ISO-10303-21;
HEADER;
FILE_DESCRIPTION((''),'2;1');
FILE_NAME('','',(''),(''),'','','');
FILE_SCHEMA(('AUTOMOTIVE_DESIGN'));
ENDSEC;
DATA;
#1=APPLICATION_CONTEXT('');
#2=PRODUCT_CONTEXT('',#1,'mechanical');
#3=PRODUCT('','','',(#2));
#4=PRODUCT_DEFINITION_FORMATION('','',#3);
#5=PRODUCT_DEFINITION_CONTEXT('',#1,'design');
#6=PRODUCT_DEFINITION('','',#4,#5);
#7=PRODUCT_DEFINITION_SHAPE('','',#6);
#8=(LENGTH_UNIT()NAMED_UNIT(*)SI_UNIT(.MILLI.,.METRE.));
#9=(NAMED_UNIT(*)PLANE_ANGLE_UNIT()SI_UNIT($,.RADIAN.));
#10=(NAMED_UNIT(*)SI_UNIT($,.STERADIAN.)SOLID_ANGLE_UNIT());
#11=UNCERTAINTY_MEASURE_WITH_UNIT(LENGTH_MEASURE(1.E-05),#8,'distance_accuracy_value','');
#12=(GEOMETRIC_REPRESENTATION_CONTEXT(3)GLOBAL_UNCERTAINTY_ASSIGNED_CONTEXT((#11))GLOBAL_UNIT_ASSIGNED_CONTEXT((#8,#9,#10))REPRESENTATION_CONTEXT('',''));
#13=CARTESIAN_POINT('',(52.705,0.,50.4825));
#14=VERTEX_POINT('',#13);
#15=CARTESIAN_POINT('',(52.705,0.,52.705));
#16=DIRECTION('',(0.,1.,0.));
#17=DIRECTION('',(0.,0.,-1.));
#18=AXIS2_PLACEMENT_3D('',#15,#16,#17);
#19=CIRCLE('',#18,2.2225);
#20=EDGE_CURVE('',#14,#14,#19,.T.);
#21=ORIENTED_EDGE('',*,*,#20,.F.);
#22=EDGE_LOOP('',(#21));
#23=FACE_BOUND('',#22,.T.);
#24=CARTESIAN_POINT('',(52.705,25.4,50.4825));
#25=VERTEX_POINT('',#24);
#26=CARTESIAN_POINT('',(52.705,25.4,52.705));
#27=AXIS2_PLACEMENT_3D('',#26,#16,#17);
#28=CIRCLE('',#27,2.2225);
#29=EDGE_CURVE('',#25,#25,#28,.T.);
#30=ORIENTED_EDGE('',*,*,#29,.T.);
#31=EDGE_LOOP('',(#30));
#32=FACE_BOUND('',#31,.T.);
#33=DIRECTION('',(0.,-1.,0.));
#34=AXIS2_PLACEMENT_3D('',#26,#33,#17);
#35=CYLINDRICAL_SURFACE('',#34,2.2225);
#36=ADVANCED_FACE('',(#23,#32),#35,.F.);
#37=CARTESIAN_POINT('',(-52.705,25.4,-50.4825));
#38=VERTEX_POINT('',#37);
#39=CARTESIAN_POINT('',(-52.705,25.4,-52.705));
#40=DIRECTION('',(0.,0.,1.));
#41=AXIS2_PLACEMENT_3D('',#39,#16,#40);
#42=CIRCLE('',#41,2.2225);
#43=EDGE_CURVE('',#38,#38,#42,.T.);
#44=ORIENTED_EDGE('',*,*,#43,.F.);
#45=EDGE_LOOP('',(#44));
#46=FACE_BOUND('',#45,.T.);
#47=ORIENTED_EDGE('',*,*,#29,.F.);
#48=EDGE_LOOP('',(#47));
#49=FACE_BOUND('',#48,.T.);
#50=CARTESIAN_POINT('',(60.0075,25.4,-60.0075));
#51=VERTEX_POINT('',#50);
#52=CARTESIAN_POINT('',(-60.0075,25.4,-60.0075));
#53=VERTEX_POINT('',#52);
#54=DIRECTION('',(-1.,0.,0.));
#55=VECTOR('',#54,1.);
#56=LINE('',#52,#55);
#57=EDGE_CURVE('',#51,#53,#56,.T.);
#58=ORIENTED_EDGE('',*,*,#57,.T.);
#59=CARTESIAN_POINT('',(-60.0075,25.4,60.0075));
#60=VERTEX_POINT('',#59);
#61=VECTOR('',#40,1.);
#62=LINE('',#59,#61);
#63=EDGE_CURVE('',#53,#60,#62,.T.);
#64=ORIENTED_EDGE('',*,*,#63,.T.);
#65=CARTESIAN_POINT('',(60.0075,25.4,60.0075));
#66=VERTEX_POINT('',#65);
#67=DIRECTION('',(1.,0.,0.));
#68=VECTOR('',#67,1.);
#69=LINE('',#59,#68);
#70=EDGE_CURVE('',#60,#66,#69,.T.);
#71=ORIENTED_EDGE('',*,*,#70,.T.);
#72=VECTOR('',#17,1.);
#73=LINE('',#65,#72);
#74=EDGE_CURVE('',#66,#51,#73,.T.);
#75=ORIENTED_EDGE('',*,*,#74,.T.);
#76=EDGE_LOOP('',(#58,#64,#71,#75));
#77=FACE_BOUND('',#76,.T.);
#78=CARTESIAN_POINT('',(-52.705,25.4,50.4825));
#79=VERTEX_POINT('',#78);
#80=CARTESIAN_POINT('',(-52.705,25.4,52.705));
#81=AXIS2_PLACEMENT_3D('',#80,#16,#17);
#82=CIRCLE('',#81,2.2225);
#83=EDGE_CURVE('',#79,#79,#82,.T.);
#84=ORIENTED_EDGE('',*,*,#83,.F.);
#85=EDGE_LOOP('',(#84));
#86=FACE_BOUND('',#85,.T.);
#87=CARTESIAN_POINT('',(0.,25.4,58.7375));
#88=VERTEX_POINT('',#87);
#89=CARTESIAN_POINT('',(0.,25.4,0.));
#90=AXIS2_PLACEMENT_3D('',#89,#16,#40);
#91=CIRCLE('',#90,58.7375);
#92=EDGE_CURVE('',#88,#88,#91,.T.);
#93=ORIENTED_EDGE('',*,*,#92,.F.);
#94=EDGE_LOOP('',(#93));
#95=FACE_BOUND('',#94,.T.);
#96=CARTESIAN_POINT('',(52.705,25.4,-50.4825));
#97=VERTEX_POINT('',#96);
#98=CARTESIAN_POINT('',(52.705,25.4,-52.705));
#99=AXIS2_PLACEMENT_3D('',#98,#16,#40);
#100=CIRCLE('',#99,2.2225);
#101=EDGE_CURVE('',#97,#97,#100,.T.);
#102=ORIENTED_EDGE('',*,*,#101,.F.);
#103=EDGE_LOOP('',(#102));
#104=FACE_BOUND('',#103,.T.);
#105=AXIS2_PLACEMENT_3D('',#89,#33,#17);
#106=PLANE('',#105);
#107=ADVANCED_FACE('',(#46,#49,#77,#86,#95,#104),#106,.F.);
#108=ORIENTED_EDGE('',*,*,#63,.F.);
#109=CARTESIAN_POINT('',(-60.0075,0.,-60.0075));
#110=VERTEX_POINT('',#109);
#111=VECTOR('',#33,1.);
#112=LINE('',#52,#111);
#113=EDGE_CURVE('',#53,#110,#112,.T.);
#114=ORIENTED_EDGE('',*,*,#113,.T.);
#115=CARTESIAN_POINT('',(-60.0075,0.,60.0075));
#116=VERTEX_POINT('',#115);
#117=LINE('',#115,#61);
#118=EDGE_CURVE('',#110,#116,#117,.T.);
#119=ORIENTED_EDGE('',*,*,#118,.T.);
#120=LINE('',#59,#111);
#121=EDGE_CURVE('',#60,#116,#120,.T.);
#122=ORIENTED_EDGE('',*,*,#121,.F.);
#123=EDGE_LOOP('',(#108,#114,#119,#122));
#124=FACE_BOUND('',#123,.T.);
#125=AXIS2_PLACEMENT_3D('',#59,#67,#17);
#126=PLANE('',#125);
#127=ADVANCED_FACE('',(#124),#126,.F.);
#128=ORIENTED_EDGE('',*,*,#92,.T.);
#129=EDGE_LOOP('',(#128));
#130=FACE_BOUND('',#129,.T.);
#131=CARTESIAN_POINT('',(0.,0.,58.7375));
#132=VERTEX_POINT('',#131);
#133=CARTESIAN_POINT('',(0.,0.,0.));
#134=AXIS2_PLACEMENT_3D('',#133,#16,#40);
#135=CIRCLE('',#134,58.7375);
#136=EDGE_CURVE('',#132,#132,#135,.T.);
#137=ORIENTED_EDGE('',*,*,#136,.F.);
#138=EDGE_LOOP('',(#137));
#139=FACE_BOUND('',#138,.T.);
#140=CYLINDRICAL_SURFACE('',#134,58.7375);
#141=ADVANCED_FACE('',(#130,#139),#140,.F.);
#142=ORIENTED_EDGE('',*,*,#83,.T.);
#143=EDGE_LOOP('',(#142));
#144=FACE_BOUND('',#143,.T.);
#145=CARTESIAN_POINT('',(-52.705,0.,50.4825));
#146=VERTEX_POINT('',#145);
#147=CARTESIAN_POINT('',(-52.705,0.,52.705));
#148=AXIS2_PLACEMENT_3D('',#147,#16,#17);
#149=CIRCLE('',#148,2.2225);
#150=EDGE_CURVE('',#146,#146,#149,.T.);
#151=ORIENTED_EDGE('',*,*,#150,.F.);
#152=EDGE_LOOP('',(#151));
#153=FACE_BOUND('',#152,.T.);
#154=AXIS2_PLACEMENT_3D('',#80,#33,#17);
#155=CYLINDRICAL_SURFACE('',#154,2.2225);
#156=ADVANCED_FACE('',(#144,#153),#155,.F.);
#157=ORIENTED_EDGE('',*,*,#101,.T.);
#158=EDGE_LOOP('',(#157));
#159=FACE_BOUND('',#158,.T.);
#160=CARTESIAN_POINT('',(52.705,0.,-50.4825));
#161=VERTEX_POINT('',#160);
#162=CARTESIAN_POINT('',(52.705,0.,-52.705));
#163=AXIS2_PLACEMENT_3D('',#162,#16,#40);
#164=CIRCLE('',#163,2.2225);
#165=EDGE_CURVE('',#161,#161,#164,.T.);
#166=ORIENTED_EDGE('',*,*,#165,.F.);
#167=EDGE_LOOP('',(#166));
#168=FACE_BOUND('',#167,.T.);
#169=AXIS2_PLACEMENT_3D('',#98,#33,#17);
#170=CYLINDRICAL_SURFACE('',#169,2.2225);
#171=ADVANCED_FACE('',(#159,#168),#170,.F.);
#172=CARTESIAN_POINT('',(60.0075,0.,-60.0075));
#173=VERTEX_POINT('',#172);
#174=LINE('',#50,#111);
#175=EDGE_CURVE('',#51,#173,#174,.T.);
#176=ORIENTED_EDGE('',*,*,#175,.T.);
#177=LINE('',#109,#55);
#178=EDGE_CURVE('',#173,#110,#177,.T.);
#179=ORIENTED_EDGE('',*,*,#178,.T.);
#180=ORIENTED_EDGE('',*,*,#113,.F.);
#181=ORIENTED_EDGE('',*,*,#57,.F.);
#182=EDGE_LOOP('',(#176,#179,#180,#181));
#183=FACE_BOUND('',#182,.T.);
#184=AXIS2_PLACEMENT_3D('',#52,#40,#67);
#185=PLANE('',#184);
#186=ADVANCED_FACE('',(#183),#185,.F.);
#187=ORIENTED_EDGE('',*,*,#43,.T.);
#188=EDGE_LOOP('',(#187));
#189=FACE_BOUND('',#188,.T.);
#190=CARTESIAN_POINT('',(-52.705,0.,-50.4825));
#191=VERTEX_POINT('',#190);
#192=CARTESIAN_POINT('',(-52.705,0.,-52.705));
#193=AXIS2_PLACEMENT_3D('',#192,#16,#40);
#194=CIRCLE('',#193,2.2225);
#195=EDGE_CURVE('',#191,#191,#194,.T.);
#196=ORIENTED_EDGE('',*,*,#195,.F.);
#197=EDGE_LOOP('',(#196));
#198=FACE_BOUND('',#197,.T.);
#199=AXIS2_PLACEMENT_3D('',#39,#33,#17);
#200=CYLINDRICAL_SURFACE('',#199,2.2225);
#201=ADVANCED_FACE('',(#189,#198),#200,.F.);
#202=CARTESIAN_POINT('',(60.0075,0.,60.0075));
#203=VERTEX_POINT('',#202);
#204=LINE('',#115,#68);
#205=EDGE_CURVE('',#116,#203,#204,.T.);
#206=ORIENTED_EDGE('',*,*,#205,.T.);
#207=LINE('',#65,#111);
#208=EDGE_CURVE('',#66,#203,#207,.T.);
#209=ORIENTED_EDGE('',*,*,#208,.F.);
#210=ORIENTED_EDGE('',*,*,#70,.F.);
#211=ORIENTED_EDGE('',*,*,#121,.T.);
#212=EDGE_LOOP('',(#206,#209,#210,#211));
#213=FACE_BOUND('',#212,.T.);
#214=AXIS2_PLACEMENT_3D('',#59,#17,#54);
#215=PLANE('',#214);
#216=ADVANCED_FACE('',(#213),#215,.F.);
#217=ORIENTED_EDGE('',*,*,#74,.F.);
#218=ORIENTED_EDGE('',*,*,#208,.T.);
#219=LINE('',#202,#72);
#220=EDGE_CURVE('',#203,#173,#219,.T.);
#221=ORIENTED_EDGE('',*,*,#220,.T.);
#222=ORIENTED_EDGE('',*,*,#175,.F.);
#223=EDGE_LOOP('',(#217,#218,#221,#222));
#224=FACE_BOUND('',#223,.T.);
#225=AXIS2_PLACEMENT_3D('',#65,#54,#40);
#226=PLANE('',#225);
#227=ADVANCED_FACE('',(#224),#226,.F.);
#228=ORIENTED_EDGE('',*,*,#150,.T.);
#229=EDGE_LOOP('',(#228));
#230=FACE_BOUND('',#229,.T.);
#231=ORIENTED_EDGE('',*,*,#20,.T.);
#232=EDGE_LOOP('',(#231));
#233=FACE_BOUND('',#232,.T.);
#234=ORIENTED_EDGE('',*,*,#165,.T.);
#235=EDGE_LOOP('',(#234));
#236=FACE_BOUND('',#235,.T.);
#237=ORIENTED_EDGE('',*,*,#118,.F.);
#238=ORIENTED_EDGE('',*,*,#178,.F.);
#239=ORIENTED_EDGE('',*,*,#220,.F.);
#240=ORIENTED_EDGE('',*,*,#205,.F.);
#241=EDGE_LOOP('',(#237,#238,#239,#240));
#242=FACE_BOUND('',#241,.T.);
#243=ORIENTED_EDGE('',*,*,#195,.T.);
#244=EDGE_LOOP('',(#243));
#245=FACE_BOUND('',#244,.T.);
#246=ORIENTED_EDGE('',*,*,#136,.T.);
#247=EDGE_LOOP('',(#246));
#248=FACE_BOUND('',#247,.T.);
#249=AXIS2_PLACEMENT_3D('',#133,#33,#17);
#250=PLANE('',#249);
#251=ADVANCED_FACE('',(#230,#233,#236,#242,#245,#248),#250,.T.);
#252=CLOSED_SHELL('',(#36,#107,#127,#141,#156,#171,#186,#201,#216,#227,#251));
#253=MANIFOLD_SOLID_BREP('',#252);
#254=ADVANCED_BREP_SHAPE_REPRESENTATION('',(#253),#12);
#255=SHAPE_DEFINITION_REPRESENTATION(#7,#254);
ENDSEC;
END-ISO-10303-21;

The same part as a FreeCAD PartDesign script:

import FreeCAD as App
import Part
import Sketcher
from FreeCAD import Vector
Q = App.Units.Quantity


def add_polygon(sketch, points):
    """Adds a closed chain of lines whose ends are joined by coincident constraints."""
    first, n = sketch.GeometryCount, len(points)
    for a, b in zip(points, points[1:] + points[:1]):
        sketch.addGeometry(Part.LineSegment(App.Vector(*a, 0), App.Vector(*b, 0)), False)
    for i in range(n):
        sketch.addConstraint(Sketcher.Constraint("Coincident", first + i, 2, first + (i + 1) % n, 1))

doc = App.newDocument("Part")
body = doc.addObject("PartDesign::Body", "Body")

sketch1 = body.newObject("Sketcher::SketchObject", "Sketch")
sketch1.AttachmentSupport = (doc.getObject("XZ_Plane"), [""])
sketch1.MapMode = "FlatFace"
add_polygon(sketch1, [(-60, -60), (-60, 60), (60, 60), (60, -60)])
sketch1.addGeometry(Part.Circle(Vector(-52.7, 52.7, 0), Vector(0, 0, 1), 2.2), False)
sketch1.addGeometry(Part.Circle(Vector(52.7, 52.7, 0), Vector(0, 0, 1), 2.2), False)
sketch1.addGeometry(Part.Circle(Vector(-52.7, -52.7, 0), Vector(0, 0, 1), 2.2), False)
sketch1.addGeometry(Part.Circle(Vector(52.7, -52.7, 0), Vector(0, 0, 1), 2.2), False)
sketch1.addConstraint([
    Sketcher.Constraint("Vertical", 0),
    Sketcher.Constraint("Horizontal", 1),
    Sketcher.Constraint("Vertical", 2),
    Sketcher.Constraint("Horizontal", 3),
    Sketcher.Constraint("Equal", 4, 5),
    Sketcher.Constraint("Equal", 5, 6),
    Sketcher.Constraint("Equal", 6, 7),
    Sketcher.Constraint("Symmetric", 5, 3, 6, 3, -1, 1),
    Sketcher.Constraint("Symmetric", 4, 3, 7, 3, -1, 1),
    Sketcher.Constraint("Symmetric", 0, 2, 2, 2, -1, 1),
    Sketcher.Constraint("Symmetric", 4, 3, 5, 3, -2),
    Sketcher.Constraint("Equal", 3, 0),
    Sketcher.Constraint("Diameter", 4, Q("0.175 in")),
    Sketcher.Constraint("DistanceX", 1, 1, 1, 2, Q("4.725 in")),
    Sketcher.Constraint("DistanceX", 4, 3, 5, 3, Q("4.15 in")),
    Sketcher.Constraint("DistanceY", 6, 3, 4, 3, Q("4.15 in")),
])
pad1 = body.newObject("PartDesign::Pad", "Pad")
pad1.Profile = sketch1
pad1.Length = Q("1 in")
pad1.Reversed = True

sketch2 = body.newObject("Sketcher::SketchObject", "Sketch001")
sketch2.AttachmentSupport = (doc.getObject("XZ_Plane"), [""])
sketch2.MapMode = "FlatFace"
sketch2.AttachmentOffset = App.Placement(Vector(0, 0, -1 * 25.4), App.Rotation())
sketch2.addGeometry(Part.Circle(Vector(0, 0, 0), Vector(0, 0, 1), 59), False)
sketch2.addConstraint([
    Sketcher.Constraint("Coincident", 0, 3, -1, 1),
    Sketcher.Constraint("Diameter", 0, Q("4.625 in")),
])
pocket1 = body.newObject("PartDesign::Pocket", "Pocket")
pocket1.Profile = sketch2
pocket1.Type = "ThroughAll"
pocket1.Reversed = True

doc.recompute()
